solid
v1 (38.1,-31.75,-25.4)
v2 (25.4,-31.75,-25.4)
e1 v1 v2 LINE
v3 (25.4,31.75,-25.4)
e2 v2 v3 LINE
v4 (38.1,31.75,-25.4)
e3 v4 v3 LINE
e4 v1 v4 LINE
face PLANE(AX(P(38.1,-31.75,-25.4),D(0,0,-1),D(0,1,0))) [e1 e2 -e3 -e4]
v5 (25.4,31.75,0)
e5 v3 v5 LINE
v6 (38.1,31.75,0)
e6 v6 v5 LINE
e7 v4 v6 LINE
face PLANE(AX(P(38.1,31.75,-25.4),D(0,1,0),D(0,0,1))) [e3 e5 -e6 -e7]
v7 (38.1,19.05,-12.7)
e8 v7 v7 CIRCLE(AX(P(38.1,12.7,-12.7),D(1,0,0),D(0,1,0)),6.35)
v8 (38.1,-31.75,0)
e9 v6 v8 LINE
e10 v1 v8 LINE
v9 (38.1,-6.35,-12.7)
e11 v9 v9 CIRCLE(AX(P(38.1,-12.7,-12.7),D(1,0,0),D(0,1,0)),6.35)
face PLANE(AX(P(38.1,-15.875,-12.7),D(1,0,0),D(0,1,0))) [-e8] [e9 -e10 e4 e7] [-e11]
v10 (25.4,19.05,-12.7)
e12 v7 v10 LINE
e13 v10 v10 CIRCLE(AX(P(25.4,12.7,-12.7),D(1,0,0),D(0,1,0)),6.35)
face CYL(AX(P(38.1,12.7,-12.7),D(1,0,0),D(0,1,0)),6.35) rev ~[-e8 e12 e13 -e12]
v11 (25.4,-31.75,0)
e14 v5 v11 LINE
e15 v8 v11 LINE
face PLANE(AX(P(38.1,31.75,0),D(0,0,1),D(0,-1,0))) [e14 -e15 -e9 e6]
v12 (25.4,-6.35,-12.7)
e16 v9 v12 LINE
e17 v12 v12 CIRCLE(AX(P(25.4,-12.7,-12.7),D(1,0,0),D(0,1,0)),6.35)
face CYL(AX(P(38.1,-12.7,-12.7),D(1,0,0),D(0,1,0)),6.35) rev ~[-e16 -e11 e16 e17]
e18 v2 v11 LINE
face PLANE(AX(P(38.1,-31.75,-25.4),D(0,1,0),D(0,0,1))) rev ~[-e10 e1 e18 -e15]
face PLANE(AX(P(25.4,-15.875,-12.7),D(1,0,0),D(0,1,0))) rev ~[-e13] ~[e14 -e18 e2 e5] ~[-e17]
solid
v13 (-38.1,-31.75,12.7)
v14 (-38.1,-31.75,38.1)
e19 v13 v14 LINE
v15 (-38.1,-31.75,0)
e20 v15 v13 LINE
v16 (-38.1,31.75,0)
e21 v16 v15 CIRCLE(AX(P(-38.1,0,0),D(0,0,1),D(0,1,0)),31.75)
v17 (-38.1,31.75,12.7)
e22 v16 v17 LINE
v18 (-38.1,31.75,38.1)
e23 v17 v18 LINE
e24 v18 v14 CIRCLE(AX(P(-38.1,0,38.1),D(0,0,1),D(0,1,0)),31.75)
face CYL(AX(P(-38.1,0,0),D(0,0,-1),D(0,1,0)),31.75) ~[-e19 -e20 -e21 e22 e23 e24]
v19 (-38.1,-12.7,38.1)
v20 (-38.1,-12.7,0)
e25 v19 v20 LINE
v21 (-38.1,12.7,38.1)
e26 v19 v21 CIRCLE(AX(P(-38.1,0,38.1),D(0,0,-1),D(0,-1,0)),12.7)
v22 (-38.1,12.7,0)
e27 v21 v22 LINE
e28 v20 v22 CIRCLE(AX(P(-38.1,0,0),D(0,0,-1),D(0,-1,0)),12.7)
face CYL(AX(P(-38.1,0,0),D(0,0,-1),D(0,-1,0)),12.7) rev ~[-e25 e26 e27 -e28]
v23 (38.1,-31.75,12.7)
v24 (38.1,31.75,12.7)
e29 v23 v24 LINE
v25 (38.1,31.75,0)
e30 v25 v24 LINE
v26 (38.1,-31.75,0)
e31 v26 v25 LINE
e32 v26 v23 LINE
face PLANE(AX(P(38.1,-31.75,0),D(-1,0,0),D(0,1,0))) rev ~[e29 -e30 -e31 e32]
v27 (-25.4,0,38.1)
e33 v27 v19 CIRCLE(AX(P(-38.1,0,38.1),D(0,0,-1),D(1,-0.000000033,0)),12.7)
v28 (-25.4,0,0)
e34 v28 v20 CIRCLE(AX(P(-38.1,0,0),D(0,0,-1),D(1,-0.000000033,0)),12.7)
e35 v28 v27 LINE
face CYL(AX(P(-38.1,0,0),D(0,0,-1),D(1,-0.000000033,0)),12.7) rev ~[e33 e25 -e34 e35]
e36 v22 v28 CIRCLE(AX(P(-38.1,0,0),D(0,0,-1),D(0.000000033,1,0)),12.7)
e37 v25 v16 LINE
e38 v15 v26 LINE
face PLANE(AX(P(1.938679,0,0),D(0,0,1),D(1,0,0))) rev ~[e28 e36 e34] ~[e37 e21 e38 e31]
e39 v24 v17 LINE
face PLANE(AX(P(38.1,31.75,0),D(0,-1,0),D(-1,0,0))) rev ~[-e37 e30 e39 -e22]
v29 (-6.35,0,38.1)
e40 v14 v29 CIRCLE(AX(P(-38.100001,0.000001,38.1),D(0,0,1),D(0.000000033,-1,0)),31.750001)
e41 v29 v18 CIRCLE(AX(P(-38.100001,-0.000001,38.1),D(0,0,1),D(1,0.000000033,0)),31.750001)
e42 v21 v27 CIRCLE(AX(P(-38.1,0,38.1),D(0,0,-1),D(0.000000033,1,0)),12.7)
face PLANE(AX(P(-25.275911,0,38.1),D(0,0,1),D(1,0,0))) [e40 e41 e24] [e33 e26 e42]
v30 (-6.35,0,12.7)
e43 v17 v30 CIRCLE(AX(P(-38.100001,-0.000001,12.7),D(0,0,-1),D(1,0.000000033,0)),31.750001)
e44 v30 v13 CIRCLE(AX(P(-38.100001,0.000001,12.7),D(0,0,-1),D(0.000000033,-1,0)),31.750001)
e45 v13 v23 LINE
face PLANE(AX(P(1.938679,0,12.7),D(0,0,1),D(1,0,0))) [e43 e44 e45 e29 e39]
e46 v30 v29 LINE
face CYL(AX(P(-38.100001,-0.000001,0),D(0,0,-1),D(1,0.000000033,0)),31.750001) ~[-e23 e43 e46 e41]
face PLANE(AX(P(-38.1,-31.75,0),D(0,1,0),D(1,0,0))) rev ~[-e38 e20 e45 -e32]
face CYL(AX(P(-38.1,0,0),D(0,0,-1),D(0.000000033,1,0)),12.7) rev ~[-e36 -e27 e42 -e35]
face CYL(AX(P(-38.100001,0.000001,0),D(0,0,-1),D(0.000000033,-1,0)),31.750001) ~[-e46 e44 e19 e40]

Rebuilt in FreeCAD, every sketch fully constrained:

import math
import FreeCAD as App
import Part
import Sketcher
Q = App.Units.Quantity


def add_polygon(sketch, points):
    """Adds a closed chain of lines whose ends are joined by coincident constraints."""
    first, n = sketch.GeometryCount, len(points)
    for a, b in zip(points, points[1:] + points[:1]):
        sketch.addGeometry(Part.LineSegment(App.Vector(*a, 0), App.Vector(*b, 0)), False)
    for i in range(n):
        sketch.addConstraint(Sketcher.Constraint("Coincident", first + i, 2, first + (i + 1) % n, 1))

doc = App.newDocument("Part")
body = doc.addObject("PartDesign::Body", "Body")

sketch1 = doc.addObject("Sketcher::SketchObject", "Sketch")
body.addObject(sketch1)
sketch1.AttachmentSupport = (doc.XY_Plane, [""])
sketch1.MapMode = "FlatFace"
sketch1.addGeometry([
    Part.LineSegment(App.Vector(-38.1, -31.75, 0), App.Vector(38.1, -31.75, 0)),
    Part.LineSegment(App.Vector(38.1, -31.75, 0), App.Vector(38.1, 31.75, 0)),
    Part.LineSegment(App.Vector(38.1, 31.75, 0), App.Vector(-38.1, 31.75, 0)),
    Part.ArcOfCircle(Part.Circle(App.Vector(-38.1, 0, 0), App.Vector(0, 0, 1), 31.75), math.radians(90), math.radians(270)),
    Part.ArcOfCircle(Part.Circle(App.Vector(-38.1, 0, 0), App.Vector(0, 0, 1), 12.7), math.radians(0.000002), math.radians(89.999998)),
    Part.ArcOfCircle(Part.Circle(App.Vector(-38.1, 0, 0), App.Vector(0, 0, 1), 12.7), math.radians(-89.999998), math.radians(-0.000002)),
    Part.ArcOfCircle(Part.Circle(App.Vector(-38.1, 0, 0), App.Vector(0, 0, 1), 12.7), math.radians(90), math.radians(270)),
], False)
sketch1.addConstraint([
    Sketcher.Constraint("Coincident", 0, 2, 1, 1),
    Sketcher.Constraint("Coincident", 1, 2, 2, 1),
    Sketcher.Constraint("Tangent", 2, 2, 3, 1),
    Sketcher.Constraint("Tangent", 3, 2, 0, 1),
    Sketcher.Constraint("Tangent", 4, 1, 5, 2),
    Sketcher.Constraint("Tangent", 5, 1, 6, 2),
    Sketcher.Constraint("Tangent", 6, 1, 4, 2),
    Sketcher.Constraint("Horizontal", 0),
    Sketcher.Constraint("Vertical", 1),
    Sketcher.Constraint("Horizontal", 2),
    Sketcher.Constraint("Coincident", 4, 3, 3, 3),
    Sketcher.Constraint("Symmetric", 0, 2, 2, 2, -1, 1),
    Sketcher.Constraint("PointOnObject", 4, 1, -1),
    Sketcher.Constraint("Vertical", 3, 2, 5, 1),
    Sketcher.Constraint("Vertical", 5, 1, 6, 1),
    Sketcher.Constraint("Radius", 4, Q("0.5 in")),
    Sketcher.Constraint("DistanceX", 0, 1, 0, 2, Q("3 in")),
    Sketcher.Constraint("Radius", 3, Q("1.25 in")),
])
pad1 = doc.addObject("PartDesign::Pad", "Pad")
body.addObject(pad1)
pad1.Profile = sketch1
pad1.Length = Q("0.5 in")

sketch2 = doc.addObject("Sketcher::SketchObject", "Sketch001")
body.addObject(sketch2)
sketch2.AttachmentSupport = (doc.XY_Plane, [""])
sketch2.MapMode = "FlatFace"
sketch2.addGeometry([
    Part.ArcOfCircle(Part.Circle(App.Vector(-38.100001, 0.000001, 0), App.Vector(0, 0, 1), 31.750001), math.radians(-89.999998), math.radians(-0.000002)),
    Part.ArcOfCircle(Part.Circle(App.Vector(-38.100001, -0.000001, 0), App.Vector(0, 0, 1), 31.750001), math.radians(0.000002), math.radians(89.999998)),
    Part.ArcOfCircle(Part.Circle(App.Vector(-38.1, 0, 0), App.Vector(0, 0, 1), 31.75), math.radians(90), math.radians(270)),
    Part.ArcOfCircle(Part.Circle(App.Vector(-38.1, 0, 0), App.Vector(0, 0, 1), 12.7), math.radians(0.000002), math.radians(89.999998)),
    Part.ArcOfCircle(Part.Circle(App.Vector(-38.1, 0, 0), App.Vector(0, 0, 1), 12.7), math.radians(-89.999998), math.radians(-0.000002)),
    Part.ArcOfCircle(Part.Circle(App.Vector(-38.1, 0, 0), App.Vector(0, 0, 1), 12.7), math.radians(90), math.radians(270)),
], False)
sketch2.addConstraint([
    Sketcher.Constraint("Tangent", 0, 2, 1, 1),
    Sketcher.Constraint("Tangent", 1, 2, 2, 1),
    Sketcher.Constraint("Tangent", 2, 2, 0, 1),
    Sketcher.Constraint("Tangent", 3, 1, 4, 2),
    Sketcher.Constraint("Tangent", 4, 1, 5, 2),
    Sketcher.Constraint("Tangent", 5, 1, 3, 2),
    Sketcher.Constraint("Coincident", 3, 3, 0, 3),
    Sketcher.Constraint("Symmetric", 1, 2, 2, 2, -1),
    Sketcher.Constraint("PointOnObject", 0, 2, -1),
    Sketcher.Constraint("PointOnObject", 3, 1, -1),
    Sketcher.Constraint("Vertical", 5, 3, 1, 2),
    Sketcher.Constraint("Vertical", 2, 2, 4, 1),
    Sketcher.Constraint("Vertical", 4, 1, 5, 1),
    Sketcher.Constraint("Radius", 3, Q("0.5 in")),
    Sketcher.Constraint("Radius", 0, Q("1.25 in")),
    Sketcher.Constraint("DistanceX", 3, 1, -1, 1, Q("1 in")),
])
pad2 = doc.addObject("PartDesign::Pad", "Pad001")
body.addObject(pad2)
pad2.Profile = sketch2
pad2.Length = Q("1.5 in")
body2 = doc.addObject("PartDesign::Body", "Body001")

sketch3 = doc.addObject("Sketcher::SketchObject", "Sketch002")
body2.addObject(sketch3)
sketch3.AttachmentSupport = (doc.getObject("YZ_Plane001"), [""])
sketch3.MapMode = "FlatFace"
sketch3.AttachmentOffset = App.Placement(App.Vector(0, 0, 1.5 * 25.4), App.Rotation())
add_polygon(sketch3, [(-31.75, 0), (-31.75, -25.4), (31.75, -25.4), (31.75, 0)])
sketch3.addGeometry(Part.Circle(App.Vector(-12.7, -12.7, 0), App.Vector(0, 0, 1), 6.35), False)
sketch3.addGeometry(Part.Circle(App.Vector(12.7, -12.7, 0), App.Vector(0, 0, 1), 6.35), False)
sketch3.addConstraint([
    Sketcher.Constraint("Vertical", 0),
    Sketcher.Constraint("Horizontal", 1),
    Sketcher.Constraint("Vertical", 2),
    Sketcher.Constraint("Horizontal", 3),
    Sketcher.Constraint("Equal", 4, 5),
    Sketcher.Constraint("Symmetric", 2, 2, 3, 2, -1, 1),
    Sketcher.Constraint("Symmetric", 4, 3, 5, 3, -2),
    Sketcher.Constraint("Diameter", 4, Q("0.5 in")),
    Sketcher.Constraint("DistanceY", 0, 2, 0, 1, Q("1 in")),
    Sketcher.Constraint("DistanceX", 1, 1, 1, 2, Q("2.5 in")),
    Sketcher.Constraint("DistanceX", 4, 3, 5, 3, Q("1 in")),
    Sketcher.Constraint("DistanceY", 4, 3, -1, 1, Q("0.5 in")),
])
pad3 = doc.addObject("PartDesign::Pad", "Pad002")
body2.addObject(pad3)
pad3.Profile = sketch3
pad3.Length = Q("0.5 in")
pad3.Reversed = True

doc.recompute()
